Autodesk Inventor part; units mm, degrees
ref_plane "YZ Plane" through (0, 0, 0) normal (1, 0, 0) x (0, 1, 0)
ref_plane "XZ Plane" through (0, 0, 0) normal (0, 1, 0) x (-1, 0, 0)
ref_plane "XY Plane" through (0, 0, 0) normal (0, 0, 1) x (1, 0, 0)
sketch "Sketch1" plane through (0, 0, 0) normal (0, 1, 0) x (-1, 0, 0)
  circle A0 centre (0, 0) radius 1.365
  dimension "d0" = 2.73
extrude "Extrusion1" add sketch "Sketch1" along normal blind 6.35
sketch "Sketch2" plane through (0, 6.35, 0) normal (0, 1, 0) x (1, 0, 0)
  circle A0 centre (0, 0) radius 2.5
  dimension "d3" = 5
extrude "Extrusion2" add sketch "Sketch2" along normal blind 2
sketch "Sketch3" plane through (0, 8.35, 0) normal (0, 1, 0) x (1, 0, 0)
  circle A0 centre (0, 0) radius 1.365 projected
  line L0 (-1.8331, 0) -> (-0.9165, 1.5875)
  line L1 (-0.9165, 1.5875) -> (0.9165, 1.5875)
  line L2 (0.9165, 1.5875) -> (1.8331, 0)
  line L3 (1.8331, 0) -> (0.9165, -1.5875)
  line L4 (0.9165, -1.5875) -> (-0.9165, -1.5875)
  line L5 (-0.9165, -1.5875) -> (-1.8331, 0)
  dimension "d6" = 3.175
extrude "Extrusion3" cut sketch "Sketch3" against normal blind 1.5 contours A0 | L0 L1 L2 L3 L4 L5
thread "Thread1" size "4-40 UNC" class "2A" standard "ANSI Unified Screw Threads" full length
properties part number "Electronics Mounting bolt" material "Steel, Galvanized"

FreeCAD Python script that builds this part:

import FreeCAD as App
import Part
import Sketcher
Q = App.Units.Quantity

doc = App.newDocument("Part")
body = doc.addObject("PartDesign::Body", "Body")

sketch1 = body.newObject("Sketcher::SketchObject", "Sketch")
sketch1.AttachmentSupport = (doc.getObject("XZ_Plane"), [""])
sketch1.MapMode = "FlatFace"
sketch1.addGeometry(Part.Circle(App.Vector(0, 0, 0), App.Vector(0, 0, 1), 1.4), False)
sketch1.addConstraint(Sketcher.Constraint("Coincident", 0, 3, -1, 1))
sketch1.addConstraint(Sketcher.Constraint("Diameter", 0, Q("2.73 mm")))
pad1 = body.newObject("PartDesign::Pad", "Pad")
pad1.Profile = sketch1
pad1.Length = 6.35
pad1.Reversed = True

sketch2 = body.newObject("Sketcher::SketchObject", "Sketch001")
sketch2.AttachmentSupport = (doc.getObject("XZ_Plane"), [""])
sketch2.MapMode = "FlatFace"
sketch2.AttachmentOffset = App.Placement(App.Vector(0, 0, -6.35), App.Rotation())
sketch2.addGeometry(Part.Circle(App.Vector(0, 0, 0), App.Vector(0, 0, 1), 2.5), False)
sketch2.addConstraint(Sketcher.Constraint("Coincident", 0, 3, -1, 1))
sketch2.addConstraint(Sketcher.Constraint("Diameter", 0, Q("5 mm")))
pad2 = body.newObject("PartDesign::Pad", "Pad001")
pad2.Profile = sketch2
pad2.Length = 2
pad2.Reversed = True

sketch3 = body.newObject("Sketcher::SketchObject", "Sketch002")
sketch3.AttachmentSupport = (doc.getObject("XZ_Plane"), [""])
sketch3.MapMode = "FlatFace"
sketch3.AttachmentOffset = App.Placement(App.Vector(0, 0, -8.35), App.Rotation())
sketch3.addGeometry(Part.LineSegment(App.Vector(-0.9, -1.6, 0), App.Vector(-1.8, 0, 0)), False)
sketch3.addGeometry(Part.LineSegment(App.Vector(-1.8, 0, 0), App.Vector(-0.9, 1.6, 0)), False)
sketch3.addGeometry(Part.LineSegment(App.Vector(-0.9, 1.6, 0), App.Vector(0.9, 1.6, 0)), False)
sketch3.addGeometry(Part.LineSegment(App.Vector(0.9, 1.6, 0), App.Vector(1.8, 0, 0)), False)
sketch3.addGeometry(Part.LineSegment(App.Vector(1.8, 0, 0), App.Vector(0.9, -1.6, 0)), False)
sketch3.addGeometry(Part.LineSegment(App.Vector(0.9, -1.6, 0), App.Vector(-0.9, -1.6, 0)), False)
sketch3.addConstraint(Sketcher.Constraint("Coincident", 0, 2, 1, 1))
sketch3.addConstraint(Sketcher.Constraint("Coincident", 1, 2, 2, 1))
sketch3.addConstraint(Sketcher.Constraint("Coincident", 2, 2, 3, 1))
sketch3.addConstraint(Sketcher.Constraint("Coincident", 3, 2, 4, 1))
sketch3.addConstraint(Sketcher.Constraint("Coincident", 4, 2, 5, 1))
sketch3.addConstraint(Sketcher.Constraint("Coincident", 5, 2, 0, 1))
sketch3.addConstraint(Sketcher.Constraint("Horizontal", 2))
sketch3.addConstraint(Sketcher.Constraint("Horizontal", 5))
sketch3.addConstraint(Sketcher.Constraint("Symmetric", 0, 2, 3, 2, -1, 1))
sketch3.addConstraint(Sketcher.Constraint("Symmetric", 1, 2, 4, 2, -1, 1))
sketch3.addConstraint(Sketcher.Constraint("PointOnObject", 0, 2, -1))
sketch3.addConstraint(Sketcher.Constraint("Parallel", 0, 3))
sketch3.addConstraint(Sketcher.Constraint("Vertical", 2, 2, 4, 2))
sketch3.addConstraint(Sketcher.Constraint("DistanceY", 4, 2, 2, 2, Q("3.175 mm")))
sketch3.addConstraint(Sketcher.Constraint("DistanceX", 2, 1, 2, 2, Q("1.833 mm")))
sketch3.addConstraint(Sketcher.Constraint("Distance", 0, Q("1.833 mm")))
pocket1 = body.newObject("PartDesign::Pocket", "Pocket")
pocket1.Profile = sketch3
pocket1.Length = 1.5
pocket1.Reversed = True

doc.recompute()
